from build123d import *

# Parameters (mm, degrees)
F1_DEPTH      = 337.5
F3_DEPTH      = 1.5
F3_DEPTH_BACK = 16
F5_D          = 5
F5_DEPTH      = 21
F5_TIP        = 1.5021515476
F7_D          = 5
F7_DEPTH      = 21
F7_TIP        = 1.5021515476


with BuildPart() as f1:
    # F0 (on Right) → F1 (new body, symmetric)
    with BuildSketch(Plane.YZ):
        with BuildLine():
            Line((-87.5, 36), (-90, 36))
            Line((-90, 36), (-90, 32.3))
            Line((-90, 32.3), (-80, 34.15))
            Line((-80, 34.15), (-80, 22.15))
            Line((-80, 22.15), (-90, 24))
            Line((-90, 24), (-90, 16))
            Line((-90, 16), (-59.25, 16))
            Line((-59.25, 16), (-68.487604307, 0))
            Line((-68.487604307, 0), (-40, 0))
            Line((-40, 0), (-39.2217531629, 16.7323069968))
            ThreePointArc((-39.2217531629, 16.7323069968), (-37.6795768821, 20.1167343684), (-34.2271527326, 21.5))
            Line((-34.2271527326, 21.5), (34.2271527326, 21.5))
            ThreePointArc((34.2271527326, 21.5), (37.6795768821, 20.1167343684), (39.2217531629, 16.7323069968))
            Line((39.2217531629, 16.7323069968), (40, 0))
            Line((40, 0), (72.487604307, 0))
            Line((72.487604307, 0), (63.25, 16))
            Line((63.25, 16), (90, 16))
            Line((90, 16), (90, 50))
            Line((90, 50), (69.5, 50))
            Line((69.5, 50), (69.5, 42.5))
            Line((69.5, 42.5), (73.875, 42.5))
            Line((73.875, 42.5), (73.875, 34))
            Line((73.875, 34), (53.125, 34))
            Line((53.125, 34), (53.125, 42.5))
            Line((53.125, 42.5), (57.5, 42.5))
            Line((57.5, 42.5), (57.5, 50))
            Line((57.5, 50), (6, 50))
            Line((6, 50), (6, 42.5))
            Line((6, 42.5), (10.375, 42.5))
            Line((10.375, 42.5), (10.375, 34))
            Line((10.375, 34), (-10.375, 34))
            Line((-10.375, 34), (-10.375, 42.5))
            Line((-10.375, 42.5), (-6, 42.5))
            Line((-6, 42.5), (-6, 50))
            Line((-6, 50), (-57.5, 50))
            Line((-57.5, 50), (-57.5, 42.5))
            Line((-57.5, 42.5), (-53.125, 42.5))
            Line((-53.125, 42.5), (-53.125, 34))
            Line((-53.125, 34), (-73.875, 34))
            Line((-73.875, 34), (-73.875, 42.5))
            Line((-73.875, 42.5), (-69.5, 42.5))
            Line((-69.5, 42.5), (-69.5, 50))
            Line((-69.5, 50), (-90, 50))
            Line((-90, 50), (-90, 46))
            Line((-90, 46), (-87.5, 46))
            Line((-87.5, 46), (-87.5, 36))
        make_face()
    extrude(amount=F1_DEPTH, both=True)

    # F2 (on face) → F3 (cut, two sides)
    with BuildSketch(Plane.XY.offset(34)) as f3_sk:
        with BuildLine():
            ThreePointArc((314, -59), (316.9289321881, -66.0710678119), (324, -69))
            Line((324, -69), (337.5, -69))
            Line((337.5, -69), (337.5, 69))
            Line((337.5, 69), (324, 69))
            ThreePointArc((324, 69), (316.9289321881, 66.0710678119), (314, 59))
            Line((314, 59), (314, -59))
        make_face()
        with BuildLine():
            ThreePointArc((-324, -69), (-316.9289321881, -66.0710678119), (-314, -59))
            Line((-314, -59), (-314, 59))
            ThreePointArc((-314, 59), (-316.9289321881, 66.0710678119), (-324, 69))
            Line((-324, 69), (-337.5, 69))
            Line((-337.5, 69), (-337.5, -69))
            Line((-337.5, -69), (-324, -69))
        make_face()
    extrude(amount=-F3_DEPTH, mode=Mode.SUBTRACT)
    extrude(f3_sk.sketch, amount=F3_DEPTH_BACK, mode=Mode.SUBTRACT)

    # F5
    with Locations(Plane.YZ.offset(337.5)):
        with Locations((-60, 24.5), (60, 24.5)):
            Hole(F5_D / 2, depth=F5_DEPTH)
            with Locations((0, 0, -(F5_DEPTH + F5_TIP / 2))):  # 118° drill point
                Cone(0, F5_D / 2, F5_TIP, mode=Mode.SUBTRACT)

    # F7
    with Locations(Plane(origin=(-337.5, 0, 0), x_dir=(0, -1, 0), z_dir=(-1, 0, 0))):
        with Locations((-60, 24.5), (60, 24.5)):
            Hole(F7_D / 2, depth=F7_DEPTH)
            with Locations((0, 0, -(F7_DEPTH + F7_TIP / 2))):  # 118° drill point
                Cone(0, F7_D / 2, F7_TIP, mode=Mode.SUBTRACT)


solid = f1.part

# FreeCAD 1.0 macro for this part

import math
import FreeCAD as App
import Part
import Sketcher
Q = App.Units.Quantity

doc = App.newDocument("Part")
body = doc.addObject("PartDesign::Body", "Body")

sketch1 = body.newObject("Sketcher::SketchObject", "Sketch")
sketch1.AttachmentSupport = (doc.getObject("YZ_Plane"), [""])
sketch1.MapMode = "FlatFace"
sketch1.addGeometry([
    Part.LineSegment(App.Vector(-87.5, 36, 0), App.Vector(-90, 36, 0)),
    Part.LineSegment(App.Vector(-90, 36, 0), App.Vector(-90, 32.3, 0)),
    Part.LineSegment(App.Vector(-90, 32.3, 0), App.Vector(-80, 34.15, 0)),
    Part.LineSegment(App.Vector(-80, 34.15, 0), App.Vector(-80, 22.15, 0)),
    Part.LineSegment(App.Vector(-80, 22.15, 0), App.Vector(-90, 24, 0)),
    Part.LineSegment(App.Vector(-90, 24, 0), App.Vector(-90, 16, 0)),
    Part.LineSegment(App.Vector(-90, 16, 0), App.Vector(-59.25, 16, 0)),
    Part.LineSegment(App.Vector(-59.25, 16, 0), App.Vector(-68.487604, 0, 0)),
    Part.LineSegment(App.Vector(-68.487604, 0, 0), App.Vector(-40, 0, 0)),
    Part.LineSegment(App.Vector(-40, 0, 0), App.Vector(-39.221753, 16.732307, 0)),
    Part.ArcOfCircle(Part.Circle(App.Vector(-34.227153, 16.5, 0), App.Vector(0, 0, 1), 5), math.radians(90), math.radians(177.336999)),
    Part.LineSegment(App.Vector(-34.227153, 21.5, 0), App.Vector(34.227153, 21.5, 0)),
    Part.ArcOfCircle(Part.Circle(App.Vector(34.227153, 16.5, 0), App.Vector(0, 0, 1), 5), math.radians(2.663001), math.radians(90)),
    Part.LineSegment(App.Vector(39.221753, 16.732307, 0), App.Vector(40, 0, 0)),
    Part.LineSegment(App.Vector(40, 0, 0), App.Vector(72.487604, 0, 0)),
    Part.LineSegment(App.Vector(72.487604, 0, 0), App.Vector(63.25, 16, 0)),
    Part.LineSegment(App.Vector(63.25, 16, 0), App.Vector(90, 16, 0)),
    Part.LineSegment(App.Vector(90, 16, 0), App.Vector(90, 50, 0)),
    Part.LineSegment(App.Vector(90, 50, 0), App.Vector(69.5, 50, 0)),
    Part.LineSegment(App.Vector(69.5, 50, 0), App.Vector(69.5, 42.5, 0)),
    Part.LineSegment(App.Vector(69.5, 42.5, 0), App.Vector(73.875, 42.5, 0)),
    Part.LineSegment(App.Vector(73.875, 42.5, 0), App.Vector(73.875, 34, 0)),
    Part.LineSegment(App.Vector(73.875, 34, 0), App.Vector(53.125, 34, 0)),
    Part.LineSegment(App.Vector(53.125, 34, 0), App.Vector(53.125, 42.5, 0)),
    Part.LineSegment(App.Vector(53.125, 42.5, 0), App.Vector(57.5, 42.5, 0)),
    Part.LineSegment(App.Vector(57.5, 42.5, 0), App.Vector(57.5, 50, 0)),
    Part.LineSegment(App.Vector(57.5, 50, 0), App.Vector(6, 50, 0)),
    Part.LineSegment(App.Vector(6, 50, 0), App.Vector(6, 42.5, 0)),
    Part.LineSegment(App.Vector(6, 42.5, 0), App.Vector(10.375, 42.5, 0)),
    Part.LineSegment(App.Vector(10.375, 42.5, 0), App.Vector(10.375, 34, 0)),
    Part.LineSegment(App.Vector(10.375, 34, 0), App.Vector(-10.375, 34, 0)),
    Part.LineSegment(App.Vector(-10.375, 34, 0), App.Vector(-10.375, 42.5, 0)),
    Part.LineSegment(App.Vector(-10.375, 42.5, 0), App.Vector(-6, 42.5, 0)),
    Part.LineSegment(App.Vector(-6, 42.5, 0), App.Vector(-6, 50, 0)),
    Part.LineSegment(App.Vector(-6, 50, 0), App.Vector(-57.5, 50, 0)),
    Part.LineSegment(App.Vector(-57.5, 50, 0), App.Vector(-57.5, 42.5, 0)),
    Part.LineSegment(App.Vector(-57.5, 42.5, 0), App.Vector(-53.125, 42.5, 0)),
    Part.LineSegment(App.Vector(-53.125, 42.5, 0), App.Vector(-53.125, 34, 0)),
    Part.LineSegment(App.Vector(-53.125, 34, 0), App.Vector(-73.875, 34, 0)),
    Part.LineSegment(App.Vector(-73.875, 34, 0), App.Vector(-73.875, 42.5, 0)),
    Part.LineSegment(App.Vector(-73.875, 42.5, 0), App.Vector(-69.5, 42.5, 0)),
    Part.LineSegment(App.Vector(-69.5, 42.5, 0), App.Vector(-69.5, 50, 0)),
    Part.LineSegment(App.Vector(-69.5, 50, 0), App.Vector(-90, 50, 0)),
    Part.LineSegment(App.Vector(-90, 50, 0), App.Vector(-90, 46, 0)),
    Part.LineSegment(App.Vector(-90, 46, 0), App.Vector(-87.5, 46, 0)),
    Part.LineSegment(App.Vector(-87.5, 46, 0), App.Vector(-87.5, 36, 0)),
], False)
sketch1.addConstraint([
    Sketcher.Constraint("Coincident", 0, 2, 1, 1),
    Sketcher.Constraint("Coincident", 1, 2, 2, 1),
    Sketcher.Constraint("Coincident", 2, 2, 3, 1),
    Sketcher.Constraint("Coincident", 3, 2, 4, 1),
    Sketcher.Constraint("Coincident", 4, 2, 5, 1),
    Sketcher.Constraint("Coincident", 5, 2, 6, 1),
    Sketcher.Constraint("Coincident", 6, 2, 7, 1),
    Sketcher.Constraint("Coincident", 7, 2, 8, 1),
    Sketcher.Constraint("Coincident", 8, 2, 9, 1),
    Sketcher.Constraint("Coincident", 9, 2, 10, 2),
    Sketcher.Constraint("Coincident", 10, 1, 11, 1),
    Sketcher.Constraint("Coincident", 11, 2, 12, 2),
    Sketcher.Constraint("Coincident", 12, 1, 13, 1),
    Sketcher.Constraint("Coincident", 13, 2, 14, 1),
    Sketcher.Constraint("Coincident", 14, 2, 15, 1),
    Sketcher.Constraint("Coincident", 15, 2, 16, 1),
    Sketcher.Constraint("Coincident", 16, 2, 17, 1),
    Sketcher.Constraint("Coincident", 17, 2, 18, 1),
    Sketcher.Constraint("Coincident", 18, 2, 19, 1),
    Sketcher.Constraint("Coincident", 19, 2, 20, 1),
    Sketcher.Constraint("Coincident", 20, 2, 21, 1),
    Sketcher.Constraint("Coincident", 21, 2, 22, 1),
    Sketcher.Constraint("Coincident", 22, 2, 23, 1),
    Sketcher.Constraint("Coincident", 23, 2, 24, 1),
    Sketcher.Constraint("Coincident", 24, 2, 25, 1),
    Sketcher.Constraint("Coincident", 25, 2, 26, 1),
    Sketcher.Constraint("Coincident", 26, 2, 27, 1),
    Sketcher.Constraint("Coincident", 27, 2, 28, 1),
    Sketcher.Constraint("Coincident", 28, 2, 29, 1),
    Sketcher.Constraint("Coincident", 29, 2, 30, 1),
    Sketcher.Constraint("Coincident", 30, 2, 31, 1),
    Sketcher.Constraint("Coincident", 31, 2, 32, 1),
    Sketcher.Constraint("Coincident", 32, 2, 33, 1),
    Sketcher.Constraint("Coincident", 33, 2, 34, 1),
    Sketcher.Constraint("Coincident", 34, 2, 35, 1),
    Sketcher.Constraint("Coincident", 35, 2, 36, 1),
    Sketcher.Constraint("Coincident", 36, 2, 37, 1),
    Sketcher.Constraint("Coincident", 37, 2, 38, 1),
    Sketcher.Constraint("Coincident", 38, 2, 39, 1),
    Sketcher.Constraint("Coincident", 39, 2, 40, 1),
    Sketcher.Constraint("Coincident", 40, 2, 41, 1),
    Sketcher.Constraint("Coincident", 41, 2, 42, 1),
    Sketcher.Constraint("Coincident", 42, 2, 43, 1),
    Sketcher.Constraint("Coincident", 43, 2, 44, 1),
    Sketcher.Constraint("Coincident", 44, 2, 45, 1),
    Sketcher.Constraint("Coincident", 45, 2, 0, 1),
    Sketcher.Constraint("Horizontal", 0),
    Sketcher.Constraint("Vertical", 1),
    Sketcher.Constraint("Vertical", 3),
    Sketcher.Constraint("Vertical", 5),
    Sketcher.Constraint("Horizontal", 6),
    Sketcher.Constraint("Horizontal", 8),
    Sketcher.Constraint("Horizontal", 11),
    Sketcher.Constraint("Horizontal", 14),
    Sketcher.Constraint("Horizontal", 16),
    Sketcher.Constraint("Vertical", 17),
    Sketcher.Constraint("Horizontal", 18),
    Sketcher.Constraint("Vertical", 19),
    Sketcher.Constraint("Horizontal", 20),
    Sketcher.Constraint("Vertical", 21),
    Sketcher.Constraint("Horizontal", 22),
    Sketcher.Constraint("Vertical", 23),
    Sketcher.Constraint("Horizontal", 24),
    Sketcher.Constraint("Vertical", 25),
    Sketcher.Constraint("Horizontal", 26),
    Sketcher.Constraint("Vertical", 27),
    Sketcher.Constraint("Horizontal", 28),
    Sketcher.Constraint("Vertical", 29),
    Sketcher.Constraint("Horizontal", 30),
    Sketcher.Constraint("Vertical", 31),
    Sketcher.Constraint("Horizontal", 32),
    Sketcher.Constraint("Vertical", 33),
    Sketcher.Constraint("Horizontal", 34),
    Sketcher.Constraint("Vertical", 35),
    Sketcher.Constraint("Horizontal", 36),
    Sketcher.Constraint("Vertical", 37),
    Sketcher.Constraint("Horizontal", 38),
    Sketcher.Constraint("Vertical", 39),
    Sketcher.Constraint("Horizontal", 40),
    Sketcher.Constraint("Vertical", 41),
    Sketcher.Constraint("Horizontal", 42),
    Sketcher.Constraint("Vertical", 43),
    Sketcher.Constraint("Horizontal", 44),
    Sketcher.Constraint("Vertical", 45),
    Sketcher.Constraint("PointOnObject", 7, 2, -1),
    Sketcher.Constraint("PointOnObject", 13, 2, -1),
    Sketcher.Constraint("Radius", 10, Q("5 mm")),
    Sketcher.Constraint("Radius", 12, Q("5 mm")),
    Sketcher.Constraint("DistanceY", 3, 2, 3, 1, Q("12 mm")),
    Sketcher.Constraint("DistanceY", 5, 2, 5, 1, Q("8 mm")),
    Sketcher.Constraint("DistanceY", 17, 1, 17, 2, Q("34 mm")),
    Sketcher.Constraint("DistanceY", 43, 2, 43, 1, Q("4 mm")),
    Sketcher.Constraint("DistanceY", 45, 2, 45, 1, Q("10 mm")),
    Sketcher.Constraint("DistanceX", 0, 2, 0, 1, Q("2.5 mm")),
    Sketcher.Constraint("DistanceX", 18, 2, 18, 1, Q("20.5 mm")),
    Sketcher.Constraint("DistanceX", 26, 2, 26, 1, Q("51.5 mm")),
    Sketcher.Constraint("DistanceX", 34, 2, 34, 1, Q("51.5 mm")),
    Sketcher.Constraint("DistanceX", 42, 2, 42, 1, Q("20.5 mm")),
    Sketcher.Constraint("DistanceX", 44, 1, 44, 2, Q("2.5 mm")),
    Sketcher.Constraint("DistanceY", 1, 2, 1, 1, Q("3.7 mm")),
    Sketcher.Constraint("DistanceY", 19, 2, 19, 1, Q("7.5 mm")),
    Sketcher.Constraint("DistanceY", 21, 2, 21, 1, Q("8.5 mm")),
    Sketcher.Constraint("DistanceY", 23, 1, 23, 2, Q("8.5 mm")),
    Sketcher.Constraint("DistanceY", 25, 1, 25, 2, Q("7.5 mm")),
    Sketcher.Constraint("DistanceY", 27, 2, 27, 1, Q("7.5 mm")),
    Sketcher.Constraint("DistanceY", 29, 2, 29, 1, Q("8.5 mm")),
    Sketcher.Constraint("DistanceY", 31, 1, 31, 2, Q("8.5 mm")),
    Sketcher.Constraint("DistanceY", 33, 1, 33, 2, Q("7.5 mm")),
    Sketcher.Constraint("DistanceY", 35, 2, 35, 1, Q("7.5 mm")),
    Sketcher.Constraint("DistanceY", 37, 2, 37, 1, Q("8.5 mm")),
    Sketcher.Constraint("DistanceY", 39, 1, 39, 2, Q("8.5 mm")),
    Sketcher.Constraint("DistanceY", 41, 1, 41, 2, Q("7.5 mm")),
    Sketcher.Constraint("DistanceX", 0, 2, -1, 1, Q("90 mm")),
    Sketcher.Constraint("DistanceY", -1, 1, 0, 2, Q("36 mm")),
    Sketcher.Constraint("DistanceX", 2, 2, -1, 1, Q("80 mm")),
    Sketcher.Constraint("DistanceX", 4, 2, -1, 1, Q("90 mm")),
    Sketcher.Constraint("DistanceY", -1, 1, 4, 2, Q("24 mm")),
    Sketcher.Constraint("DistanceX", 8, 2, -1, 1, Q("40 mm")),
    Sketcher.Constraint("DistanceX", -1, 1, 13, 2, Q("40 mm")),
    Sketcher.Constraint("DistanceX", -1, 1, 16, 2, Q("90 mm")),
    Sketcher.Constraint("DistanceX", -1, 1, 26, 2, Q("6 mm")),
    Sketcher.Constraint("DistanceX", 32, 2, -1, 1, Q("6 mm")),
    Sketcher.Constraint("DistanceY", 11, 2, 27, 2, Q("21 mm")),
    Sketcher.Constraint("DistanceX", 6, 1, 6, 2, Q("30.75 mm")),
    Sketcher.Constraint("DistanceX", 16, 1, 16, 2, Q("26.75 mm")),
    Sketcher.Constraint("DistanceX", 22, 2, 22, 1, Q("20.75 mm")),
    Sketcher.Constraint("DistanceX", 30, 2, 30, 1, Q("20.75 mm")),
    Sketcher.Constraint("DistanceX", 38, 2, 38, 1, Q("20.75 mm")),
    Sketcher.Constraint("DistanceX", 20, 1, 20, 2, Q("4.375 mm")),
    Sketcher.Constraint("DistanceX", 28, 1, 28, 2, Q("4.375 mm")),
    Sketcher.Constraint("DistanceX", 36, 1, 36, 2, Q("4.375 mm")),
    Sketcher.Constraint("DistanceY", -1, 1, 2, 2, Q("34.15 mm")),
    Sketcher.Constraint("DistanceX", 9, 2, 10, 3, Q("4.9946 mm")),
    Sketcher.Constraint("DistanceX", 9, 2, 10, 1, Q("4.9946 mm")),
    Sketcher.Constraint("DistanceX", 12, 3, 12, 1, Q("4.9946 mm")),
    Sketcher.Constraint("DistanceX", 11, 2, 12, 1, Q("4.9946 mm")),
    Sketcher.Constraint("Distance", 7, Q("18.475209 mm")),
    Sketcher.Constraint("Distance", 15, Q("18.475209 mm")),
    Sketcher.Constraint("DistanceX", 11, 1, 11, 2, Q("68.454305 mm")),
    Sketcher.Constraint("DistanceX", 7, 2, 9, 2, Q("29.265851 mm")),
])
pad1 = body.newObject("PartDesign::Pad", "Pad")
pad1.Profile = sketch1
pad1.Length = 675
pad1.Midplane = True

sketch2 = body.newObject("Sketcher::SketchObject", "Sketch001")
sketch2.AttachmentSupport = (doc.getObject("XY_Plane"), [""])
sketch2.MapMode = "FlatFace"
sketch2.AttachmentOffset = App.Placement(App.Vector(0, 0, 34), App.Rotation())
sketch2.addGeometry([
    Part.ArcOfCircle(Part.Circle(App.Vector(324, -59, 0), App.Vector(0, 0, 1), 10), math.radians(180), math.radians(270)),
    Part.LineSegment(App.Vector(324, -69, 0), App.Vector(338, -69, 0)),
    Part.LineSegment(App.Vector(338, -69, 0), App.Vector(338, 69, 0)),
    Part.LineSegment(App.Vector(338, 69, 0), App.Vector(324, 69, 0)),
    Part.ArcOfCircle(Part.Circle(App.Vector(324, 59, 0), App.Vector(0, 0, 1), 10), math.radians(90), math.radians(180)),
    Part.LineSegment(App.Vector(314, 59, 0), App.Vector(314, -59, 0)),
    Part.ArcOfCircle(Part.Circle(App.Vector(-324, -59, 0), App.Vector(0, 0, 1), 10), math.radians(-90), math.radians(0)),
    Part.LineSegment(App.Vector(-314, -59, 0), App.Vector(-314, 59, 0)),
    Part.ArcOfCircle(Part.Circle(App.Vector(-324, 59, 0), App.Vector(0, 0, 1), 10), math.radians(0), math.radians(90)),
    Part.LineSegment(App.Vector(-324, 69, 0), App.Vector(-338, 69, 0)),
    Part.LineSegment(App.Vector(-338, 69, 0), App.Vector(-338, -69, 0)),
    Part.LineSegment(App.Vector(-338, -69, 0), App.Vector(-324, -69, 0)),
], False)
sketch2.addConstraint([
    Sketcher.Constraint("Tangent", 0, 2, 1, 1),
    Sketcher.Constraint("Coincident", 1, 2, 2, 1),
    Sketcher.Constraint("Coincident", 2, 2, 3, 1),
    Sketcher.Constraint("Tangent", 3, 2, 4, 1),
    Sketcher.Constraint("Tangent", 4, 2, 5, 1),
    Sketcher.Constraint("Tangent", 5, 2, 0, 1),
    Sketcher.Constraint("Tangent", 6, 2, 7, 1),
    Sketcher.Constraint("Tangent", 7, 2, 8, 1),
    Sketcher.Constraint("Tangent", 8, 2, 9, 1),
    Sketcher.Constraint("Coincident", 9, 2, 10, 1),
    Sketcher.Constraint("Coincident", 10, 2, 11, 1),
    Sketcher.Constraint("Tangent", 11, 2, 6, 1),
    Sketcher.Constraint("Horizontal", 1),
    Sketcher.Constraint("Vertical", 2),
    Sketcher.Constraint("Horizontal", 3),
    Sketcher.Constraint("Vertical", 5),
    Sketcher.Constraint("Vertical", 7),
    Sketcher.Constraint("Horizontal", 9),
    Sketcher.Constraint("Vertical", 10),
    Sketcher.Constraint("Horizontal", 11),
    Sketcher.Constraint("Equal", 0, 4),
    Sketcher.Constraint("Equal", 4, 6),
    Sketcher.Constraint("Equal", 6, 8),
    Sketcher.Constraint("Symmetric", 4, 3, 6, 3, -1, 1),
    Sketcher.Constraint("Symmetric", 1, 2, 9, 2, -1, 1),
    Sketcher.Constraint("Horizontal", 0, 3, 6, 3),
    Sketcher.Constraint("Radius", 0, Q("10 mm")),
    Sketcher.Constraint("DistanceY", 2, 1, 2, 2, Q("138 mm")),
    Sketcher.Constraint("DistanceX", 1, 1, 1, 2, Q("13.5 mm")),
    Sketcher.Constraint("DistanceX", -1, 1, 0, 3, Q("324 mm")),
])
pocket1 = body.newObject("PartDesign::Pocket", "Pocket")
pocket1.Profile = sketch2
pocket1.Type = "TwoLengths"
pocket1.Length = 1.5
pocket1.Length2 = 16

sketch3 = body.newObject("Sketcher::SketchObject", "Sketch002")
sketch3.AttachmentSupport = (doc.getObject("YZ_Plane"), [""])
sketch3.MapMode = "FlatFace"
sketch3.AttachmentOffset = App.Placement(App.Vector(0, 0, 337.5), App.Rotation())
sketch3.addGeometry([
    Part.Circle(App.Vector(-60, 24.5, 0), App.Vector(0, 0, 1), 2.5),
    Part.Circle(App.Vector(60, 24.5, 0), App.Vector(0, 0, 1), 2.5),
], False)
sketch3.addConstraint([
    Sketcher.Constraint("Equal", 0, 1),
    Sketcher.Constraint("Symmetric", 0, 3, 1, 3, -2),
    Sketcher.Constraint("Diameter", 0, Q("5 mm")),
    Sketcher.Constraint("DistanceX", 0, 3, -1, 1, Q("60 mm")),
    Sketcher.Constraint("DistanceY", -1, 1, 0, 3, Q("24.5 mm")),
])
doc.recompute()
hole = body.newObject("PartDesign::Hole", "Hole")
hole.Profile = sketch3
hole.ThreadType = "None"
hole.Diameter = 5
hole.DepthType = "Dimension"
hole.Depth = 21
hole.DrillPoint = "Angled"
hole.DrillPointAngle = 118

sketch4 = body.newObject("Sketcher::SketchObject", "Sketch003")
sketch4.AttachmentSupport = (doc.getObject("YZ_Plane"), [""])
sketch4.MapMode = "FlatFace"
sketch4.AttachmentOffset = App.Placement(App.Vector(0, 0, -337.5), App.Rotation())
sketch4.addGeometry([
    Part.Circle(App.Vector(60, 24.5, 0), App.Vector(0, 0, 1), 2.5),
    Part.Circle(App.Vector(-60, 24.5, 0), App.Vector(0, 0, 1), 2.5),
], False)
sketch4.addConstraint([
    Sketcher.Constraint("Equal", 0, 1),
    Sketcher.Constraint("Symmetric", 0, 3, 1, 3, -2),
    Sketcher.Constraint("Diameter", 0, Q("5 mm")),
    Sketcher.Constraint("DistanceX", -1, 1, 0, 3, Q("60 mm")),
    Sketcher.Constraint("DistanceY", -1, 1, 0, 3, Q("24.5 mm")),
])
doc.recompute()
hole2 = body.newObject("PartDesign::Hole", "Hole001")
hole2.Profile = sketch4
hole2.ThreadType = "None"
hole2.Diameter = 5
hole2.DepthType = "Dimension"
hole2.Depth = 21
hole2.DrillPoint = "Angled"
hole2.DrillPointAngle = 118
hole2.Reversed = True

doc.recompute()
